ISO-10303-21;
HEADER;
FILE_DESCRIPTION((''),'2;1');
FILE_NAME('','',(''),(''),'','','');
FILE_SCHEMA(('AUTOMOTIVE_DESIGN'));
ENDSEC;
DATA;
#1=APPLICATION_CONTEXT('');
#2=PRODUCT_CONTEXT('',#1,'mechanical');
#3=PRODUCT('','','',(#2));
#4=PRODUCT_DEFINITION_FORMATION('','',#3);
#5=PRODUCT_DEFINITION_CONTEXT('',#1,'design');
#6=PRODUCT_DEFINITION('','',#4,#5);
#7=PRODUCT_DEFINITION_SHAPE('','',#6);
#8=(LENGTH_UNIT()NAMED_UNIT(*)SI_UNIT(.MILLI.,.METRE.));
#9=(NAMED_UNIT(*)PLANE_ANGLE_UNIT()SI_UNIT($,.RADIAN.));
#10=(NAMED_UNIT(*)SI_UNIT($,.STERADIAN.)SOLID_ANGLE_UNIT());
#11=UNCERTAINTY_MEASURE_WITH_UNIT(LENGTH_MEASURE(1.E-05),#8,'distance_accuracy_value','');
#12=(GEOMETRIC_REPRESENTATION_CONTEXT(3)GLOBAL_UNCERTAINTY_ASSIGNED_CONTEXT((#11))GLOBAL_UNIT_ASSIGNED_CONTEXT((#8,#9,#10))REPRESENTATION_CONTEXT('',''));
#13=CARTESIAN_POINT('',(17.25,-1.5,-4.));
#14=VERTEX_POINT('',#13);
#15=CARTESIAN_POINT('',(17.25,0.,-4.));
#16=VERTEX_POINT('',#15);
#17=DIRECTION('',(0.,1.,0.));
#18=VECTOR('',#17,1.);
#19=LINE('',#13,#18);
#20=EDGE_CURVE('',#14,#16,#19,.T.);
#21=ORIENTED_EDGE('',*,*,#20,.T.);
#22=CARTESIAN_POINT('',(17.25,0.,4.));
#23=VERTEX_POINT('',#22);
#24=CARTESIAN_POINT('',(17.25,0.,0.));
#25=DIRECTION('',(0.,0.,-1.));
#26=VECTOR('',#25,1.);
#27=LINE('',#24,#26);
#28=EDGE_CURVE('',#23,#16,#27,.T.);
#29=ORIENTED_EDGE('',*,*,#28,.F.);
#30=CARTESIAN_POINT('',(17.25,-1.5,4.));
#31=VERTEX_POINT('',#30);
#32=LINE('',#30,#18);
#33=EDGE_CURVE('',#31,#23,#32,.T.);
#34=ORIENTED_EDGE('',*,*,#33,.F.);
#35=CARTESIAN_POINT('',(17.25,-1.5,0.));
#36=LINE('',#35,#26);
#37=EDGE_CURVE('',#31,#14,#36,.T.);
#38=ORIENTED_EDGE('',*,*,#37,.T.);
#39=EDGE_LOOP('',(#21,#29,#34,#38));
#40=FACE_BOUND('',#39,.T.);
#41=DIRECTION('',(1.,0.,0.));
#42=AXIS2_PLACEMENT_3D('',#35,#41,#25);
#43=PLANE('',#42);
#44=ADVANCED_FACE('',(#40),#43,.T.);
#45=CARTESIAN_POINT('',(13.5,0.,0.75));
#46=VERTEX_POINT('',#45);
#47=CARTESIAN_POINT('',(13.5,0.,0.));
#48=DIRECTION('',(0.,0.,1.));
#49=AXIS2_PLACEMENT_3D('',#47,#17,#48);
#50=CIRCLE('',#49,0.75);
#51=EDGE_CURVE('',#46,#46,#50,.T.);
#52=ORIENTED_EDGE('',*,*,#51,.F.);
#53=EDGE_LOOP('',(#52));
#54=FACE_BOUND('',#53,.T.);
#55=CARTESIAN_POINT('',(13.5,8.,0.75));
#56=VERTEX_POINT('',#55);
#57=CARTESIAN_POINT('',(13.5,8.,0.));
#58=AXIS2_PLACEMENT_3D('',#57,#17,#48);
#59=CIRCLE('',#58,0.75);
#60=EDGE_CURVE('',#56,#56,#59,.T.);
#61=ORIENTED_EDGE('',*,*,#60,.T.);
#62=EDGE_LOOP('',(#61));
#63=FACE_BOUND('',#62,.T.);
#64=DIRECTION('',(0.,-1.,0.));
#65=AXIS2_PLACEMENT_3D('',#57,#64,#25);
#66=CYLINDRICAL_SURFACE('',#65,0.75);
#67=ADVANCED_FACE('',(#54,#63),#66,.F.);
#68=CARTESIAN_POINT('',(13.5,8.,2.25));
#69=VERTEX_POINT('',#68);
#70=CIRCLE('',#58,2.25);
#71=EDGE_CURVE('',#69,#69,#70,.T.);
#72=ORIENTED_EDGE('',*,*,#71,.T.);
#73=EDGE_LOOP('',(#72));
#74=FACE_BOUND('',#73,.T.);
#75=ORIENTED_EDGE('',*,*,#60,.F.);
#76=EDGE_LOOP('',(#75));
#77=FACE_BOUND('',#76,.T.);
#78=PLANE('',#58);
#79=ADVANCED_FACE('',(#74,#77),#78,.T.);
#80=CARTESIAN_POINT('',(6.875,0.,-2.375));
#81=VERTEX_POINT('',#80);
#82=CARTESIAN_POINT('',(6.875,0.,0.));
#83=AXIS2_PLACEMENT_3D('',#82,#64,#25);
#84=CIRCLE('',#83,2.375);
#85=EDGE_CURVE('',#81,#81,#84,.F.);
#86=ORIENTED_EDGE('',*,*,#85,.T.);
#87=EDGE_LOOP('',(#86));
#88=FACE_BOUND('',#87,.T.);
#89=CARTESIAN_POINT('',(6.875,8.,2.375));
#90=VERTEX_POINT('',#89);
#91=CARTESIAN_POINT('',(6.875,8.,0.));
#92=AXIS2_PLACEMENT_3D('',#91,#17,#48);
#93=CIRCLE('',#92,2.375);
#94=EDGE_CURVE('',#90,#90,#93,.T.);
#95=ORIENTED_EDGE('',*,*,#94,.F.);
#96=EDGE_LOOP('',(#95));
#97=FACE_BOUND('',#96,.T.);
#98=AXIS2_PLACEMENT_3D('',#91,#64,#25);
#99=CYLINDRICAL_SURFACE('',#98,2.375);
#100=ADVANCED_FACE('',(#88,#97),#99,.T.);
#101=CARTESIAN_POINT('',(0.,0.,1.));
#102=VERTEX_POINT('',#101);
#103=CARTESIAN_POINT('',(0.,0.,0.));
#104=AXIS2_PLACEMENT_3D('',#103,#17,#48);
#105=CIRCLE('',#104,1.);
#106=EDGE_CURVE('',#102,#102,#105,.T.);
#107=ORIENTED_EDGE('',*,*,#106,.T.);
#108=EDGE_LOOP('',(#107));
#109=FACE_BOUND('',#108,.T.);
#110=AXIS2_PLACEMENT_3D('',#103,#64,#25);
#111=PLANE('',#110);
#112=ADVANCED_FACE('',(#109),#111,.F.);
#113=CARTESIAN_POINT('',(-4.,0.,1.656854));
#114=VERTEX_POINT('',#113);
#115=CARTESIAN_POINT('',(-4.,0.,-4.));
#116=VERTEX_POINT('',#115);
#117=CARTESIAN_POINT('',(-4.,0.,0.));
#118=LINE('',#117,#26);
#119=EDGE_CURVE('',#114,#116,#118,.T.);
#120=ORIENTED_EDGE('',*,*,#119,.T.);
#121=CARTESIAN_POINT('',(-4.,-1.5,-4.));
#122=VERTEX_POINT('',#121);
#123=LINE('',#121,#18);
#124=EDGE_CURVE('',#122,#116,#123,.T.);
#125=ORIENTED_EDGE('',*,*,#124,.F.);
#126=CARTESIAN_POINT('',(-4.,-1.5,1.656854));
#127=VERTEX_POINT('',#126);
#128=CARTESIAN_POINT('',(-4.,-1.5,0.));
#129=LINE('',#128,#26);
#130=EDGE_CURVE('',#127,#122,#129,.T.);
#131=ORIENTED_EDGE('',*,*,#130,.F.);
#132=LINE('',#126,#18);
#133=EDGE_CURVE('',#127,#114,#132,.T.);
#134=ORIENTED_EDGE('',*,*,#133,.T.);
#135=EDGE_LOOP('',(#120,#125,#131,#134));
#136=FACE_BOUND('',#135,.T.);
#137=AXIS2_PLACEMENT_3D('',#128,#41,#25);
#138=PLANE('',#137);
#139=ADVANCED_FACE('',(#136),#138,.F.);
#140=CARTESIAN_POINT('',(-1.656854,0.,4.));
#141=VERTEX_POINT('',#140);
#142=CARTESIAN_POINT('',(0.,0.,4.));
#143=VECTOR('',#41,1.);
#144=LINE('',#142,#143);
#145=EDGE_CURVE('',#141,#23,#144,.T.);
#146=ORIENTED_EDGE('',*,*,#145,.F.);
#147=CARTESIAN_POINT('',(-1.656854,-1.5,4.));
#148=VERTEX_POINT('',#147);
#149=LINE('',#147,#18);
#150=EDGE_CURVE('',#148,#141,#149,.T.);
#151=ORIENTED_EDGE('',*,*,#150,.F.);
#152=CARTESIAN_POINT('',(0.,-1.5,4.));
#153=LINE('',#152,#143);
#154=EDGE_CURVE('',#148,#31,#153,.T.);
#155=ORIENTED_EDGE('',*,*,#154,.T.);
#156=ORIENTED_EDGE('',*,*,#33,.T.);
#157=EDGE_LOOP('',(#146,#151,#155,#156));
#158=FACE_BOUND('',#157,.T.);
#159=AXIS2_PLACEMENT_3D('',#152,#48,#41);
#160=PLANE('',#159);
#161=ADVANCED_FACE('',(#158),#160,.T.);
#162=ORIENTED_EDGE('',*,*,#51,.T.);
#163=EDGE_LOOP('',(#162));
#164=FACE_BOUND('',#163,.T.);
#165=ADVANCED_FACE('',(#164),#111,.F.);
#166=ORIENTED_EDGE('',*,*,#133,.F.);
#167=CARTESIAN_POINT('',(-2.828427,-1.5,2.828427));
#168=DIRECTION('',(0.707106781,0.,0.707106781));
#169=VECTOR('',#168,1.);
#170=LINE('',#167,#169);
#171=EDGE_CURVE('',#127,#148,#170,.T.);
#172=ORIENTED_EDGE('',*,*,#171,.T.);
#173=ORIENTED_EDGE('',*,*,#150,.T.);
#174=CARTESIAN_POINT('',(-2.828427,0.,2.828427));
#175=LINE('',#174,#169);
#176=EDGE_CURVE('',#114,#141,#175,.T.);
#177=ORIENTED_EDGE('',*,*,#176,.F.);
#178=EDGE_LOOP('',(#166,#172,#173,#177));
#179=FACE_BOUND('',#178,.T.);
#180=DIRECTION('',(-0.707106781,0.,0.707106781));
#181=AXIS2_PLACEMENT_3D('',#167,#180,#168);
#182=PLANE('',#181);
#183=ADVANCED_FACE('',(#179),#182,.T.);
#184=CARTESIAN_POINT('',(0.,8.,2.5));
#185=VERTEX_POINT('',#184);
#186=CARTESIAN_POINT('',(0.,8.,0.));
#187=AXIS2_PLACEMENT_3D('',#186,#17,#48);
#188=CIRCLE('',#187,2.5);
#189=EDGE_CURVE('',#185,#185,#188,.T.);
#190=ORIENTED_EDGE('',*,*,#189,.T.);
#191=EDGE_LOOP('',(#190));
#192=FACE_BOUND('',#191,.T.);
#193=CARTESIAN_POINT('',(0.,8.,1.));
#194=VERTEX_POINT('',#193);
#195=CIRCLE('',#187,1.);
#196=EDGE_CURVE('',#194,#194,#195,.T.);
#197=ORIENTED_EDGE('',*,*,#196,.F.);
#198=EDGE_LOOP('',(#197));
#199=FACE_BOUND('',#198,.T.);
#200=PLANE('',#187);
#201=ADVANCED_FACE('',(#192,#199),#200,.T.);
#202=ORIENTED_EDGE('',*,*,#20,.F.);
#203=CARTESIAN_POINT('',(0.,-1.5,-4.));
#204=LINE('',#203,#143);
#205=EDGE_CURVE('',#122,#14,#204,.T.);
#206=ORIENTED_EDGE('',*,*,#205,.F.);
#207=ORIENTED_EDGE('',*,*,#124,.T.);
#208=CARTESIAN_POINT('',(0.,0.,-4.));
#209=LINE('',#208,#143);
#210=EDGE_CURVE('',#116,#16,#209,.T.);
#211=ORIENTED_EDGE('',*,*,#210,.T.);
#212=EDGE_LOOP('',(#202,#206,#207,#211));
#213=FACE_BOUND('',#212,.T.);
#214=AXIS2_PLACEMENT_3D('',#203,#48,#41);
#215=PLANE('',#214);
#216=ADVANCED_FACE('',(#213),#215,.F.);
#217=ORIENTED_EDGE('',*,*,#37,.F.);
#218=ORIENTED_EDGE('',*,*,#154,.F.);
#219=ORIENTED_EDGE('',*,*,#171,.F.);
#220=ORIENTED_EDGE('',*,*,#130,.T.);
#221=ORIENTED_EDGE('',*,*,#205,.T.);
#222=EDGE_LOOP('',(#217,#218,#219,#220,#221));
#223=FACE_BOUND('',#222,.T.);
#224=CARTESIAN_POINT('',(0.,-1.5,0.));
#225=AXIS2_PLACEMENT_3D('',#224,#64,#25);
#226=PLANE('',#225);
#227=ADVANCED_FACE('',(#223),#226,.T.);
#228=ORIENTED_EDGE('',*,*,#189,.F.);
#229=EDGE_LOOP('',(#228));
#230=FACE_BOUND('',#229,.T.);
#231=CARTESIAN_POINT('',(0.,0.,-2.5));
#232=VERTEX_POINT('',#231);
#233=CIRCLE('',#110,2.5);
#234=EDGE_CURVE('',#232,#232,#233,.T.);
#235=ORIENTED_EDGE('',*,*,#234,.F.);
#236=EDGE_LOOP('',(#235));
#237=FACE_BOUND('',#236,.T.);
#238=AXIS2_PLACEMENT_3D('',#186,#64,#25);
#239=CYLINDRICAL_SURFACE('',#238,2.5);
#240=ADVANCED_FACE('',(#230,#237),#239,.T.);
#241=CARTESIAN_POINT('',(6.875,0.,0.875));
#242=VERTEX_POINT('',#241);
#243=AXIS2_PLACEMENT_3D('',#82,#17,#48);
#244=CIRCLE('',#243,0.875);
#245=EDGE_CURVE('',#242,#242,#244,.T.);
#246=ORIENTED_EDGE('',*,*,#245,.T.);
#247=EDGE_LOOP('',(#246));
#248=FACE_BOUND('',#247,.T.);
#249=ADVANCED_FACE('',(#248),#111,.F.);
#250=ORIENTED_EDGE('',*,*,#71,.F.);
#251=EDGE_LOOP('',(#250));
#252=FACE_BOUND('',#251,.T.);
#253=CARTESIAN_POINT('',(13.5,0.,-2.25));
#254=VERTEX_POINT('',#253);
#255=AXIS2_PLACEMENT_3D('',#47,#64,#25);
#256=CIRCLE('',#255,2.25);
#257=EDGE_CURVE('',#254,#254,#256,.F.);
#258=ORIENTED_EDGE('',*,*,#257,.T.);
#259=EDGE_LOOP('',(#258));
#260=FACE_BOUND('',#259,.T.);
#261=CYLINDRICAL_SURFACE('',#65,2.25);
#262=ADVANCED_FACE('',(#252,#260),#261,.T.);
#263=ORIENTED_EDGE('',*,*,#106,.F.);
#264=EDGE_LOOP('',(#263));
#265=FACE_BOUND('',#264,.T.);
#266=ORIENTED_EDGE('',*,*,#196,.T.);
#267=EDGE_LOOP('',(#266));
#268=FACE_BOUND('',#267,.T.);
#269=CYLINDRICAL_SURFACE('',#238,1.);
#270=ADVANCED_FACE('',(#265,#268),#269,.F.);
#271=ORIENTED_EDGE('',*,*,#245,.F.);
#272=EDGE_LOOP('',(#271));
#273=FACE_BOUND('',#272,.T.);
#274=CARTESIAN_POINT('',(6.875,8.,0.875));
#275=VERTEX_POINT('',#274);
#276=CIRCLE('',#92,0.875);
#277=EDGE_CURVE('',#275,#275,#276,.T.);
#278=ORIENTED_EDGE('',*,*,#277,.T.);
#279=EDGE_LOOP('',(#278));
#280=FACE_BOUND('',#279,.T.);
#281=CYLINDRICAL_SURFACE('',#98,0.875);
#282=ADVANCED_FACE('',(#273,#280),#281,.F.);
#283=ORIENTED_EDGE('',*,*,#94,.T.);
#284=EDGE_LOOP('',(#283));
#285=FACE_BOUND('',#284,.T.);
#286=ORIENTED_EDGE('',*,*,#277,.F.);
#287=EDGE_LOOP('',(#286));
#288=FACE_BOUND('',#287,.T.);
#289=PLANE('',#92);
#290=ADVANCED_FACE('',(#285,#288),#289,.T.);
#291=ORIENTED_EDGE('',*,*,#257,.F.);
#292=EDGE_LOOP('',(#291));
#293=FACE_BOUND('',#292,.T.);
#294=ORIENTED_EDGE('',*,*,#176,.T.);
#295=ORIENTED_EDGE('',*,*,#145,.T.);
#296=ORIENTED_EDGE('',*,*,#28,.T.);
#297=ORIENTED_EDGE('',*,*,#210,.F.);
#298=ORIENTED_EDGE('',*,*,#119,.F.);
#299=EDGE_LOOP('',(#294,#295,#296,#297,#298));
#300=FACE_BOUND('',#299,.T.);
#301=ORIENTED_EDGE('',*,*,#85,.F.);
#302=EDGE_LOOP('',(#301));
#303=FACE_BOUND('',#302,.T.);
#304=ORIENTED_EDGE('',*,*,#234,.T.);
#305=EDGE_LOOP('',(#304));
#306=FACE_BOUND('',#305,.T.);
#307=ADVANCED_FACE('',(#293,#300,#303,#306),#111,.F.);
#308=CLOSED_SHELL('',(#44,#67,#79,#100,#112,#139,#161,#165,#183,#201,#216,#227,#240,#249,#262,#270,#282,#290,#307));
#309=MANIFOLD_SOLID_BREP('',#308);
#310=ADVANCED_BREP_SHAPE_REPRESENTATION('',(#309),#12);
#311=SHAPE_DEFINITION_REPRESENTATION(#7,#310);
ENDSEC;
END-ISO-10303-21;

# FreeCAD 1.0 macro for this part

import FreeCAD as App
import Part
import Sketcher
from FreeCAD import Vector
Q = App.Units.Quantity


def add_polygon(sketch, points):
    """Adds a closed chain of lines whose ends are joined by coincident constraints."""
    first, n = sketch.GeometryCount, len(points)
    for a, b in zip(points, points[1:] + points[:1]):
        sketch.addGeometry(Part.LineSegment(App.Vector(*a, 0), App.Vector(*b, 0)), False)
    for i in range(n):
        sketch.addConstraint(Sketcher.Constraint("Coincident", first + i, 2, first + (i + 1) % n, 1))

doc = App.newDocument("Part")
body = doc.addObject("PartDesign::Body", "Body")

# Sketch on XZ plane
sketch1 = doc.addObject("Sketcher::SketchObject", "Sketch")
body.addObject(sketch1)
sketch1.AttachmentSupport = (doc.XZ_Plane, [""])
sketch1.MapMode = "FlatFace"
sketch1.addGeometry(Part.Circle(Vector(0, 0, 0), Vector(0, 0, 1), 2.5), False)
sketch1.addGeometry(Part.Circle(Vector(0, 0, 0), Vector(0, 0, 1), 1), False)
sketch1.addConstraint(Sketcher.Constraint("Coincident", 0, 3, -1, 1))
sketch1.addConstraint(Sketcher.Constraint("Coincident", 1, 3, -1, 1))
sketch1.addConstraint(Sketcher.Constraint("Diameter", 0, 5.0))
sketch1.addConstraint(Sketcher.Constraint("Diameter", 1, 2.0))
pad1 = doc.addObject("PartDesign::Pad", "Pad")
body.addObject(pad1)
pad1.Profile = sketch1
pad1.Length = 8
pad1.Reversed = True
body2 = doc.addObject("PartDesign::Body", "Body001")

# Sketch on XZ plane
sketch2 = doc.addObject("Sketcher::SketchObject", "Sketch001")
body2.addObject(sketch2)
sketch2.AttachmentSupport = (doc.getObject("XZ_Plane001"), [""])
sketch2.MapMode = "FlatFace"
sketch2.addGeometry(Part.Circle(Vector(6.875, 0, 0), Vector(0, 0, 1), 2.375), False)
sketch2.addGeometry(Part.Circle(Vector(6.875, 0, 0), Vector(0, 0, 1), 0.875), False)
sketch2.addConstraint(Sketcher.Constraint("Coincident", 1, 3, 0, 3))
sketch2.addConstraint(Sketcher.Constraint("PointOnObject", 0, 3, -1))
sketch2.addConstraint(Sketcher.Constraint("Diameter", 0, 4.75))
sketch2.addConstraint(Sketcher.Constraint("Diameter", 1, 1.75))
sketch2.addConstraint(Sketcher.Constraint("DistanceX", -1, 1, 0, 3, 6.875))
pad2 = doc.addObject("PartDesign::Pad", "Pad001")
body2.addObject(pad2)
pad2.Profile = sketch2
pad2.Length = 8
pad2.Reversed = True
body3 = doc.addObject("PartDesign::Body", "Body002")

# Sketch on XZ plane
sketch3 = doc.addObject("Sketcher::SketchObject", "Sketch002")
body3.addObject(sketch3)
sketch3.AttachmentSupport = (doc.getObject("XZ_Plane002"), [""])
sketch3.MapMode = "FlatFace"
sketch3.addGeometry(Part.Circle(Vector(13.5, 0, 0), Vector(0, 0, 1), 2.25), False)
sketch3.addGeometry(Part.Circle(Vector(13.5, 0, 0), Vector(0, 0, 1), 0.75), False)
sketch3.addConstraint(Sketcher.Constraint("Coincident", 1, 3, 0, 3))
sketch3.addConstraint(Sketcher.Constraint("PointOnObject", 0, 3, -1))
sketch3.addConstraint(Sketcher.Constraint("Diameter", 0, 4.5))
sketch3.addConstraint(Sketcher.Constraint("Diameter", 1, 1.5))
sketch3.addConstraint(Sketcher.Constraint("DistanceX", -1, 1, 0, 3, 13.5))
pad3 = doc.addObject("PartDesign::Pad", "Pad002")
body3.addObject(pad3)
pad3.Profile = sketch3
pad3.Length = 8
pad3.Reversed = True
body.AllowCompound = True
doc.recompute()

boolean = doc.addObject("PartDesign::Boolean", "Boolean")
body.addObject(boolean)
boolean.Type = "Fuse"
boolean.addObjects([body2])
doc.recompute()

boolean2 = doc.addObject("PartDesign::Boolean", "Boolean001")
body.addObject(boolean2)
boolean2.Type = "Fuse"
boolean2.addObjects([body3])

# Sketch on XZ plane
sketch4 = doc.addObject("Sketcher::SketchObject", "Sketch003")
body.addObject(sketch4)
sketch4.AttachmentSupport = (doc.XZ_Plane, [""])
sketch4.MapMode = "FlatFace"
sketch4.AttachmentOffset = App.Placement(Vector(0, 0, 1.5), App.Rotation())
add_polygon(sketch4, [(17.25, 4), (-1.656854, 4), (-4, 1.656854), (-4, -4), (17.25, -4)])  # lines 0-4
sketch4.addConstraint(Sketcher.Constraint("Horizontal", 0))
sketch4.addConstraint(Sketcher.Constraint("Vertical", 2))
sketch4.addConstraint(Sketcher.Constraint("Horizontal", 3))
sketch4.addConstraint(Sketcher.Constraint("Vertical", 4))
sketch4.addConstraint(Sketcher.Constraint("DistanceY", 4, 1, 4, 2, 8.0))
sketch4.addConstraint(Sketcher.Constraint("Angle", 1, Q("-135 deg")))
sketch4.addConstraint(Sketcher.Constraint("DistanceY", -1, 1, 0, 2, 4.0))
sketch4.addConstraint(Sketcher.Constraint("DistanceX", 1, 2, -1, 1, 4.0))
sketch4.addConstraint(Sketcher.Constraint("DistanceX", 3, 1, 3, 2, 21.25))
sketch4.addConstraint(Sketcher.Constraint("Distance", 1, 3.313708))
pad4 = doc.addObject("PartDesign::Pad", "Pad003")
body.addObject(pad4)
pad4.Profile = sketch4
pad4.Length = 1.5
pad4.Reversed = True

doc.recompute()
